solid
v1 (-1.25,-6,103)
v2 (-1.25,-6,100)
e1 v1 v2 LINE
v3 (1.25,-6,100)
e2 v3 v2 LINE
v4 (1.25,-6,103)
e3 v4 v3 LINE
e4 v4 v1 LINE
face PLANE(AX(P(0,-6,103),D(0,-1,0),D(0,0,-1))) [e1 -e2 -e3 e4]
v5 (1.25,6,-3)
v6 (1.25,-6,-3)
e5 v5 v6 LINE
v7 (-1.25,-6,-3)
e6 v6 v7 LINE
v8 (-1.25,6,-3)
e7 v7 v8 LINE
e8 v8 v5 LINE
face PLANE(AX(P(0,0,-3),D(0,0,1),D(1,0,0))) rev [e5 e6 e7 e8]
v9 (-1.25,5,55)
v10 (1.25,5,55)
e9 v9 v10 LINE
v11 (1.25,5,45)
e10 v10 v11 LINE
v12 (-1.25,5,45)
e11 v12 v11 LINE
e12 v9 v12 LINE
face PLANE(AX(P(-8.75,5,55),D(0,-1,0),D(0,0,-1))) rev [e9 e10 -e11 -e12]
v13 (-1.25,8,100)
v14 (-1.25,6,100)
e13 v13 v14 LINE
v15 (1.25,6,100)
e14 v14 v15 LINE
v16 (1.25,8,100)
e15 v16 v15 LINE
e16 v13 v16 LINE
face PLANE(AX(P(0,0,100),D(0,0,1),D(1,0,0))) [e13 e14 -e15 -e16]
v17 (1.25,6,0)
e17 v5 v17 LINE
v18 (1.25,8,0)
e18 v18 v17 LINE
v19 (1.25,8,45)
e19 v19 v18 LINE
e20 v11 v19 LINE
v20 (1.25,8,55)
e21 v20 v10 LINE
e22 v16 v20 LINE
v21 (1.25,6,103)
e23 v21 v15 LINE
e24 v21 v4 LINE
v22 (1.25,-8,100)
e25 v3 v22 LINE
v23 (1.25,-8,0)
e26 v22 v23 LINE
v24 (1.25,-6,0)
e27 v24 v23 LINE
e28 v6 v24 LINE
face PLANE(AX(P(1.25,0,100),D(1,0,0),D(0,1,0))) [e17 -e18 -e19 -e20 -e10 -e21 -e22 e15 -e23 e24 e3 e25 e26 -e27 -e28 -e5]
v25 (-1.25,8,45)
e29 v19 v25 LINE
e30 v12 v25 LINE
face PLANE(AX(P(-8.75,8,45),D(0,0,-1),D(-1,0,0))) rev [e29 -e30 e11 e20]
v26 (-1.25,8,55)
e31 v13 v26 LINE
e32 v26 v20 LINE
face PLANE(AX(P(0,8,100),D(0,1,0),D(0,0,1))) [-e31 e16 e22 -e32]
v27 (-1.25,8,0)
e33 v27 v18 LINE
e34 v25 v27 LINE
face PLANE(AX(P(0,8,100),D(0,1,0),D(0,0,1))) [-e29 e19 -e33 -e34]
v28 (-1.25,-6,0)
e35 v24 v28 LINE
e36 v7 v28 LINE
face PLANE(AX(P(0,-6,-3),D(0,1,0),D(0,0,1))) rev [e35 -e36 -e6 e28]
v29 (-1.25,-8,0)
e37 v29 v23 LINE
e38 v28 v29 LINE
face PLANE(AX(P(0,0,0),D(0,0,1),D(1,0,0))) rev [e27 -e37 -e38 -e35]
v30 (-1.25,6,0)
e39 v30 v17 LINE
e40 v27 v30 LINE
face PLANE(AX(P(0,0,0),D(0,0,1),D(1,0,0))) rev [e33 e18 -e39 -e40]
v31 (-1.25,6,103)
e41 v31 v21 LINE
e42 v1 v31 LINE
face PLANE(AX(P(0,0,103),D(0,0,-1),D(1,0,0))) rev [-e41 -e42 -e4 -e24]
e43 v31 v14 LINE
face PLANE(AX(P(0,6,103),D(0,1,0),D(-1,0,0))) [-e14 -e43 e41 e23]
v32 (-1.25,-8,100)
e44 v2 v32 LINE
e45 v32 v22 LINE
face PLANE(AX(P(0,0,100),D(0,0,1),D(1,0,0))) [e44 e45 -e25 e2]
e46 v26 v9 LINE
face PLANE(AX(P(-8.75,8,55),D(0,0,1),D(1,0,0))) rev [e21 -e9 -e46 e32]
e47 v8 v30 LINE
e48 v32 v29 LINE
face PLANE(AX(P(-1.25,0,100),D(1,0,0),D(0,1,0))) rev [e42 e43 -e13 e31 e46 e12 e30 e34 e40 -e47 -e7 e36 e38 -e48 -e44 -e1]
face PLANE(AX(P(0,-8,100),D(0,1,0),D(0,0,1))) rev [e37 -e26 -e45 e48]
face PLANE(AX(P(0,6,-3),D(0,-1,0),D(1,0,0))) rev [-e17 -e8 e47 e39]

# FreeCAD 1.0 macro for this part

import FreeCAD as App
import Part
import Sketcher
Q = App.Units.Quantity

doc = App.newDocument("Part")
body = doc.addObject("PartDesign::Body", "Body")

# Sketch on XY plane
sketch1 = body.newObject("Sketcher::SketchObject", "Sketch")
sketch1.AttachmentSupport = (doc.getObject("XY_Plane"), [""])
sketch1.MapMode = "FlatFace"
sketch1.addGeometry(Part.LineSegment(App.Vector(-1.2, 8, 0), App.Vector(-1.2, -8, 0)), False)
sketch1.addGeometry(Part.LineSegment(App.Vector(-1.2, -8, 0), App.Vector(1.2, -8, 0)), False)
sketch1.addGeometry(Part.LineSegment(App.Vector(1.2, -8, 0), App.Vector(1.2, 8, 0)), False)
sketch1.addGeometry(Part.LineSegment(App.Vector(1.2, 8, 0), App.Vector(-1.2, 8, 0)), False)
sketch1.addConstraint(Sketcher.Constraint("Coincident", 0, 2, 1, 1))
sketch1.addConstraint(Sketcher.Constraint("Coincident", 1, 2, 2, 1))
sketch1.addConstraint(Sketcher.Constraint("Coincident", 2, 2, 3, 1))
sketch1.addConstraint(Sketcher.Constraint("Coincident", 3, 2, 0, 1))
sketch1.addConstraint(Sketcher.Constraint("Vertical", 0))
sketch1.addConstraint(Sketcher.Constraint("Horizontal", 1))
sketch1.addConstraint(Sketcher.Constraint("Vertical", 2))
sketch1.addConstraint(Sketcher.Constraint("Horizontal", 3))
sketch1.addConstraint(Sketcher.Constraint("Symmetric", 0, 2, 2, 2, -1, 1))
sketch1.addConstraint(Sketcher.Constraint("DistanceY", 0, 2, 0, 1, Q("16 mm")))
sketch1.addConstraint(Sketcher.Constraint("DistanceX", 1, 1, 1, 2, Q("2.5 mm")))
pad1 = body.newObject("PartDesign::Pad", "Pad")
pad1.Profile = sketch1
pad1.Length = 100

# Sketch on XY plane
sketch2 = body.newObject("Sketcher::SketchObject", "Sketch001")
sketch2.AttachmentSupport = (doc.getObject("XY_Plane"), [""])
sketch2.MapMode = "FlatFace"
sketch2.addGeometry(Part.LineSegment(App.Vector(-1.2, 6, 0), App.Vector(-1.2, -6, 0)), False)
sketch2.addGeometry(Part.LineSegment(App.Vector(-1.2, -6, 0), App.Vector(1.2, -6, 0)), False)
sketch2.addGeometry(Part.LineSegment(App.Vector(1.2, -6, 0), App.Vector(1.2, 6, 0)), False)
sketch2.addGeometry(Part.LineSegment(App.Vector(1.2, 6, 0), App.Vector(-1.2, 6, 0)), False)
sketch2.addConstraint(Sketcher.Constraint("Coincident", 0, 2, 1, 1))
sketch2.addConstraint(Sketcher.Constraint("Coincident", 1, 2, 2, 1))
sketch2.addConstraint(Sketcher.Constraint("Coincident", 2, 2, 3, 1))
sketch2.addConstraint(Sketcher.Constraint("Coincident", 3, 2, 0, 1))
sketch2.addConstraint(Sketcher.Constraint("Vertical", 0))
sketch2.addConstraint(Sketcher.Constraint("Horizontal", 1))
sketch2.addConstraint(Sketcher.Constraint("Vertical", 2))
sketch2.addConstraint(Sketcher.Constraint("Horizontal", 3))
sketch2.addConstraint(Sketcher.Constraint("Symmetric", 0, 2, 2, 2, -1, 1))
sketch2.addConstraint(Sketcher.Constraint("DistanceY", 0, 2, 0, 1, Q("12 mm")))
sketch2.addConstraint(Sketcher.Constraint("DistanceX", 1, 1, 1, 2, Q("2.5 mm")))
pad2 = body.newObject("PartDesign::Pad", "Pad001")
pad2.Profile = sketch2
pad2.Length = 3
pad2.Reversed = True
doc.recompute()

datumplane = body.newObject("PartDesign::Plane", "DatumPlane")
datumplane.AttachmentSupport = (doc.getObject("XY_Plane"), [""])
datumplane.MapMode = "FlatFace"
datumplane.AttachmentOffset = App.Placement(App.Vector(0, 0, 50), App.Rotation())
mirrored = body.newObject("PartDesign::Mirrored", "Mirrored")
mirrored.Originals = [pad2]
mirrored.MirrorPlane = (datumplane, [""])
body.Tip = mirrored

# Sketch on YZ plane
sketch3 = body.newObject("Sketcher::SketchObject", "Sketch002")
sketch3.AttachmentSupport = (doc.getObject("YZ_Plane"), [""])
sketch3.MapMode = "FlatFace"
sketch3.AttachmentOffset = App.Placement(App.Vector(0, 0, 1.25), App.Rotation())
sketch3.addGeometry(Part.LineSegment(App.Vector(8, 55, 0), App.Vector(5, 55, 0)), False)
sketch3.addGeometry(Part.LineSegment(App.Vector(5, 55, 0), App.Vector(5, 45, 0)), False)
sketch3.addGeometry(Part.LineSegment(App.Vector(5, 45, 0), App.Vector(8, 45, 0)), False)
sketch3.addGeometry(Part.LineSegment(App.Vector(8, 45, 0), App.Vector(8, 55, 0)), False)
sketch3.addConstraint(Sketcher.Constraint("Coincident", 0, 2, 1, 1))
sketch3.addConstraint(Sketcher.Constraint("Coincident", 1, 2, 2, 1))
sketch3.addConstraint(Sketcher.Constraint("Coincident", 2, 2, 3, 1))
sketch3.addConstraint(Sketcher.Constraint("Coincident", 3, 2, 0, 1))
sketch3.addConstraint(Sketcher.Constraint("Horizontal", 0))
sketch3.addConstraint(Sketcher.Constraint("Vertical", 1))
sketch3.addConstraint(Sketcher.Constraint("Horizontal", 2))
sketch3.addConstraint(Sketcher.Constraint("Vertical", 3))
sketch3.addConstraint(Sketcher.Constraint("DistanceX", 0, 2, 0, 1, Q("3 mm")))
sketch3.addConstraint(Sketcher.Constraint("DistanceY", 1, 2, 1, 1, Q("10 mm")))
sketch3.addConstraint(Sketcher.Constraint("DistanceX", -1, 1, 0, 2, Q("5 mm")))
sketch3.addConstraint(Sketcher.Constraint("DistanceY", -1, 1, 0, 2, Q("55 mm")))
pocket1 = body.newObject("PartDesign::Pocket", "Pocket")
pocket1.Profile = sketch3
pocket1.Length = 10

doc.recompute()
